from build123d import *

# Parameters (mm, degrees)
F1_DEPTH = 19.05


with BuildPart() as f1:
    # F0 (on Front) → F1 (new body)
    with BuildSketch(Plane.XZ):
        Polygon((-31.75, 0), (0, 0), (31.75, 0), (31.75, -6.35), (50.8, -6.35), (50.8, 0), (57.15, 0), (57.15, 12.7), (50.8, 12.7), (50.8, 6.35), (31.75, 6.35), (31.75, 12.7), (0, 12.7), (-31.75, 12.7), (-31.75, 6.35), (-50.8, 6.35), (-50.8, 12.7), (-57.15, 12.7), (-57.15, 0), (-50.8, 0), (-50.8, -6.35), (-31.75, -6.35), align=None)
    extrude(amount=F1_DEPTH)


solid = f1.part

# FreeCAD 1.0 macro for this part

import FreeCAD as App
import Part
import Sketcher
Q = App.Units.Quantity

doc = App.newDocument("Part")
body = doc.addObject("PartDesign::Body", "Body")

sketch1 = body.newObject("Sketcher::SketchObject", "Sketch")
sketch1.AttachmentSupport = (doc.getObject("XZ_Plane"), [""])
sketch1.MapMode = "FlatFace"
sketch1.addGeometry([
    Part.LineSegment(App.Vector(-32, 0, 0), App.Vector(32, 0, 0)),
    Part.LineSegment(App.Vector(32, 0, 0), App.Vector(32, -6, 0)),
    Part.LineSegment(App.Vector(32, -6, 0), App.Vector(51, -6, 0)),
    Part.LineSegment(App.Vector(51, -6, 0), App.Vector(51, 0, 0)),
    Part.LineSegment(App.Vector(51, 0, 0), App.Vector(57, 0, 0)),
    Part.LineSegment(App.Vector(57, 0, 0), App.Vector(57, 13, 0)),
    Part.LineSegment(App.Vector(57, 13, 0), App.Vector(51, 13, 0)),
    Part.LineSegment(App.Vector(51, 13, 0), App.Vector(51, 6, 0)),
    Part.LineSegment(App.Vector(51, 6, 0), App.Vector(32, 6, 0)),
    Part.LineSegment(App.Vector(32, 6, 0), App.Vector(32, 13, 0)),
    Part.LineSegment(App.Vector(32, 13, 0), App.Vector(-32, 13, 0)),
    Part.LineSegment(App.Vector(-32, 13, 0), App.Vector(-32, 6, 0)),
    Part.LineSegment(App.Vector(-32, 6, 0), App.Vector(-51, 6, 0)),
    Part.LineSegment(App.Vector(-51, 6, 0), App.Vector(-51, 13, 0)),
    Part.LineSegment(App.Vector(-51, 13, 0), App.Vector(-57, 13, 0)),
    Part.LineSegment(App.Vector(-57, 13, 0), App.Vector(-57, 0, 0)),
    Part.LineSegment(App.Vector(-57, 0, 0), App.Vector(-51, 0, 0)),
    Part.LineSegment(App.Vector(-51, 0, 0), App.Vector(-51, -6, 0)),
    Part.LineSegment(App.Vector(-51, -6, 0), App.Vector(-32, -6, 0)),
    Part.LineSegment(App.Vector(-32, -6, 0), App.Vector(-32, 0, 0)),
], False)
sketch1.addConstraint([
    Sketcher.Constraint("Coincident", 0, 2, 1, 1),
    Sketcher.Constraint("Coincident", 1, 2, 2, 1),
    Sketcher.Constraint("Coincident", 2, 2, 3, 1),
    Sketcher.Constraint("Coincident", 3, 2, 4, 1),
    Sketcher.Constraint("Coincident", 4, 2, 5, 1),
    Sketcher.Constraint("Coincident", 5, 2, 6, 1),
    Sketcher.Constraint("Coincident", 6, 2, 7, 1),
    Sketcher.Constraint("Coincident", 7, 2, 8, 1),
    Sketcher.Constraint("Coincident", 8, 2, 9, 1),
    Sketcher.Constraint("Coincident", 9, 2, 10, 1),
    Sketcher.Constraint("Coincident", 10, 2, 11, 1),
    Sketcher.Constraint("Coincident", 11, 2, 12, 1),
    Sketcher.Constraint("Coincident", 12, 2, 13, 1),
    Sketcher.Constraint("Coincident", 13, 2, 14, 1),
    Sketcher.Constraint("Coincident", 14, 2, 15, 1),
    Sketcher.Constraint("Coincident", 15, 2, 16, 1),
    Sketcher.Constraint("Coincident", 16, 2, 17, 1),
    Sketcher.Constraint("Coincident", 17, 2, 18, 1),
    Sketcher.Constraint("Coincident", 18, 2, 19, 1),
    Sketcher.Constraint("Coincident", 19, 2, 0, 1),
    Sketcher.Constraint("Horizontal", 0),
    Sketcher.Constraint("Vertical", 1),
    Sketcher.Constraint("Horizontal", 2),
    Sketcher.Constraint("Vertical", 3),
    Sketcher.Constraint("Horizontal", 4),
    Sketcher.Constraint("Vertical", 5),
    Sketcher.Constraint("Horizontal", 6),
    Sketcher.Constraint("Vertical", 7),
    Sketcher.Constraint("Horizontal", 8),
    Sketcher.Constraint("Vertical", 9),
    Sketcher.Constraint("Horizontal", 10),
    Sketcher.Constraint("Vertical", 11),
    Sketcher.Constraint("Horizontal", 12),
    Sketcher.Constraint("Vertical", 13),
    Sketcher.Constraint("Horizontal", 14),
    Sketcher.Constraint("Vertical", 15),
    Sketcher.Constraint("Horizontal", 16),
    Sketcher.Constraint("Vertical", 17),
    Sketcher.Constraint("Horizontal", 18),
    Sketcher.Constraint("Vertical", 19),
    Sketcher.Constraint("Symmetric", 1, 2, 11, 2, -1, 1),
    Sketcher.Constraint("Symmetric", 4, 2, 15, 2, -1, 1),
    Sketcher.Constraint("Symmetric", 7, 2, 17, 2, -1, 1),
    Sketcher.Constraint("Symmetric", 0, 2, 19, 2, -1, 1),
    Sketcher.Constraint("Symmetric", 8, 2, 11, 2, -2),
    Sketcher.Constraint("Symmetric", 6, 2, 13, 2, -2),
    Sketcher.Constraint("Symmetric", 3, 2, 16, 2, -2),
    Sketcher.Constraint("Horizontal", 6, 2, 9, 2),
    Sketcher.Constraint("Equal", 16, 1),
    Sketcher.Constraint("Equal", 3, 7),
    Sketcher.Constraint("DistanceX", 0, 1, 0, 2, Q("2.5 in")),
    Sketcher.Constraint("DistanceY", 5, 1, 5, 2, Q("0.5 in")),
    Sketcher.Constraint("DistanceX", -1, 1, 2, 2, Q("2 in")),
])
pad1 = body.newObject("PartDesign::Pad", "Pad")
pad1.Profile = sketch1
pad1.Length = Q("0.75 in")

doc.recompute()
